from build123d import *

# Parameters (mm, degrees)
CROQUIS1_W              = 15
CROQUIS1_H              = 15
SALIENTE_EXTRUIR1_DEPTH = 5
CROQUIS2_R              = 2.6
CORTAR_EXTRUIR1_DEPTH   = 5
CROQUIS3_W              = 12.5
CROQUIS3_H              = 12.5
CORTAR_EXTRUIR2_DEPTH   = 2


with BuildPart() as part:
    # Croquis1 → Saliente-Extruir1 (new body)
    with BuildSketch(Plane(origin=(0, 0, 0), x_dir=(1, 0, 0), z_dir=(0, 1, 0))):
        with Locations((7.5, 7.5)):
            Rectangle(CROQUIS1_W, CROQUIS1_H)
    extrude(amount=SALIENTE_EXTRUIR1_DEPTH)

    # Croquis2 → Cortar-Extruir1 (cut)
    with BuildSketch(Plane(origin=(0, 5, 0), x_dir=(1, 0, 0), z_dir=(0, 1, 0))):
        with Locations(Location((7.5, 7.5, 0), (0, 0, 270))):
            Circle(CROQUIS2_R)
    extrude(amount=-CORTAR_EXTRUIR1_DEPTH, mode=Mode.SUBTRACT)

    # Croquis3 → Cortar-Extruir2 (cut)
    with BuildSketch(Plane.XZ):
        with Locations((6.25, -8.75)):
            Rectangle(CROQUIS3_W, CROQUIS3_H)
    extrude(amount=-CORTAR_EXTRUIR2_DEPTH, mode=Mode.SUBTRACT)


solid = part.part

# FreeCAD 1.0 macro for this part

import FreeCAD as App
import Part
import Sketcher
Q = App.Units.Quantity


def add_polygon(sketch, points):
    """Adds a closed chain of lines whose ends are joined by coincident constraints."""
    first, n = sketch.GeometryCount, len(points)
    for a, b in zip(points, points[1:] + points[:1]):
        sketch.addGeometry(Part.LineSegment(App.Vector(*a, 0), App.Vector(*b, 0)), False)
    for i in range(n):
        sketch.addConstraint(Sketcher.Constraint("Coincident", first + i, 2, first + (i + 1) % n, 1))

doc = App.newDocument("Part")
params = doc.addObject("Spreadsheet::Sheet", "Params")
for row, (alias, value) in enumerate([
    ("sketch1_width", "15 mm"),
    ("pad1_length", "5 mm"),
    ("sketch2_diameter", "5.2 mm"),
    ("pocket1_length", "5 mm"),
    ("sketch3_width", "12.5 mm"),
    ("pocket2_length", "2 mm"),
], start=1):
    params.set(f"A{row}", alias)
    params.set(f"B{row}", "=" + value)
    params.setAlias(f"B{row}", alias)

body = doc.addObject("PartDesign::Body", "Body")

sketch1 = body.newObject("Sketcher::SketchObject", "Sketch")
sketch1.AttachmentSupport = (doc.getObject("XZ_Plane"), [""])
sketch1.MapMode = "FlatFace"
add_polygon(sketch1, [(0, -15), (0, 0), (15, 0), (15, -15)])
sketch1.addConstraint([
    Sketcher.Constraint("Vertical", 0),
    Sketcher.Constraint("Horizontal", 1),
    Sketcher.Constraint("Vertical", 2),
    Sketcher.Constraint("Horizontal", 3),
    Sketcher.Constraint("Coincident", 0, 2, -1, 1),
    Sketcher.Constraint("Equal", 3, 0),
    Sketcher.Constraint("DistanceX", 1, 1, 1, 2, Q("15 mm")),
])
sketch1.setExpression("Constraints[10]", "Params.sketch1_width")
pad1 = body.newObject("PartDesign::Pad", "Pad")
pad1.Profile = sketch1
pad1.setExpression("Length", "Params.pad1_length")
pad1.Reversed = True

sketch2 = body.newObject("Sketcher::SketchObject", "Sketch001")
sketch2.AttachmentSupport = (doc.getObject("XZ_Plane"), [""])
sketch2.MapMode = "FlatFace"
sketch2.AttachmentOffset = App.Placement(App.Vector(0, 0, -5), App.Rotation())
sketch2.addGeometry(Part.Circle(App.Vector(7.5, -7.5, 0), App.Vector(0, 0, 1), 2.6), False)
sketch2.addConstraint([
    Sketcher.Constraint("Diameter", 0, Q("5.2 mm")),
    Sketcher.Constraint("DistanceX", -1, 1, 0, 3, Q("7.5 mm")),
    Sketcher.Constraint("DistanceY", 0, 3, -1, 1, Q("7.5 mm")),
])
sketch2.setExpression("Constraints[0]", "Params.sketch2_diameter")
pocket1 = body.newObject("PartDesign::Pocket", "Pocket")
pocket1.Profile = sketch2
pocket1.setExpression("Length", "Params.pocket1_length")
pocket1.Reversed = True

sketch3 = body.newObject("Sketcher::SketchObject", "Sketch002")
sketch3.AttachmentSupport = (doc.getObject("XZ_Plane"), [""])
sketch3.MapMode = "FlatFace"
add_polygon(sketch3, [(0, -2.5), (0, -15), (12.5, -15), (12.5, -2.5)])
sketch3.addConstraint([
    Sketcher.Constraint("Vertical", 0),
    Sketcher.Constraint("Horizontal", 1),
    Sketcher.Constraint("Vertical", 2),
    Sketcher.Constraint("Horizontal", 3),
    Sketcher.Constraint("PointOnObject", 0, 2, -2),
    Sketcher.Constraint("Equal", 3, 0),
    Sketcher.Constraint("DistanceX", 1, 1, 1, 2, Q("12.5 mm")),
    Sketcher.Constraint("DistanceY", 0, 2, -1, 1, Q("15 mm")),
])
sketch3.setExpression("Constraints[10]", "Params.sketch3_width")
pocket2 = body.newObject("PartDesign::Pocket", "Pocket001")
pocket2.Profile = sketch3
pocket2.setExpression("Length", "Params.pocket2_length")

doc.recompute()
